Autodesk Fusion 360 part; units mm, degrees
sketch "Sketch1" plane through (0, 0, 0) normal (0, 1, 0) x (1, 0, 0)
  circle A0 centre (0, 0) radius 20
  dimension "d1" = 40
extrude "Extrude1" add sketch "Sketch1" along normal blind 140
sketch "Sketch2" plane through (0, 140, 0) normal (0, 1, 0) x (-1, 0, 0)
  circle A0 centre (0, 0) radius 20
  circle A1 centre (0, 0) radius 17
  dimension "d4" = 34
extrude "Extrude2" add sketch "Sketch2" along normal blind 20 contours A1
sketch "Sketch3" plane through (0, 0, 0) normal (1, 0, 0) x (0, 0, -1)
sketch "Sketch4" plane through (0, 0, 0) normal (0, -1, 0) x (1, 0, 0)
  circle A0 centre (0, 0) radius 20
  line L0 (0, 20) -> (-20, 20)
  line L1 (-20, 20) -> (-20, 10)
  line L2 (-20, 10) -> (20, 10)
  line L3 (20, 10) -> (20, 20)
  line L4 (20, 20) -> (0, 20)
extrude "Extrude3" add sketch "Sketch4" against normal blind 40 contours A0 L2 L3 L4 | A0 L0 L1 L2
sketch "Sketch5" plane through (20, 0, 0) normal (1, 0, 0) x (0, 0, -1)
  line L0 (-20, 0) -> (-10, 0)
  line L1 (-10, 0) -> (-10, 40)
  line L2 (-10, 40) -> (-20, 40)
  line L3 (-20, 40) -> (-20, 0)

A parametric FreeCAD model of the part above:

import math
import FreeCAD as App
import Part
import Sketcher
from FreeCAD import Vector

doc = App.newDocument("Part")
params = doc.addObject("Spreadsheet::Sheet", "Params")
for row, (alias, value) in enumerate([
    ("sketch1_diameter", "40 mm"),
    ("pad1_length", "140 mm"),
    ("sketch2_diameter", "34 mm"),
    ("pad2_length", "20 mm"),
    ("sketch3_radius", "20 mm"),
    ("sketch3_width", "20 mm"),
    ("sketch3_height", "10 mm"),
    ("pad3_length", "40 mm"),
], start=1):
    params.set(f"A{row}", alias)
    params.set(f"B{row}", "=" + value)
    params.setAlias(f"B{row}", alias)

body = doc.addObject("PartDesign::Body", "Body")

# Sketch on XZ plane
sketch1 = body.newObject("Sketcher::SketchObject", "Sketch")
sketch1.AttachmentSupport = (doc.getObject("XZ_Plane"), [""])
sketch1.MapMode = "FlatFace"
sketch1.addGeometry(Part.Circle(Vector(0, 0, 0), Vector(0, 0, 1), 20), False)
sketch1.addConstraint(Sketcher.Constraint("Coincident", 0, 3, -1, 1))
sketch1.addConstraint(Sketcher.Constraint("Diameter", 0, 40.0))
sketch1.setExpression("Constraints[1]", "Params.sketch1_diameter")
pad1 = body.newObject("PartDesign::Pad", "Pad")
pad1.Profile = sketch1
pad1.setExpression("Length", "Params.pad1_length")
pad1.Reversed = True

# Sketch on XZ plane
sketch2 = body.newObject("Sketcher::SketchObject", "Sketch001")
sketch2.AttachmentSupport = (doc.getObject("XZ_Plane"), [""])
sketch2.MapMode = "FlatFace"
sketch2.AttachmentOffset = App.Placement(Vector(0, 0, -140), App.Rotation())
sketch2.addGeometry(Part.Circle(Vector(0, 0, 0), Vector(0, 0, 1), 17), False)
sketch2.addConstraint(Sketcher.Constraint("Coincident", 0, 3, -1, 1))
sketch2.addConstraint(Sketcher.Constraint("Diameter", 0, 34.0))
sketch2.setExpression("Constraints[1]", "Params.sketch2_diameter")
pad2 = body.newObject("PartDesign::Pad", "Pad001")
pad2.Profile = sketch2
pad2.setExpression("Length", "Params.pad2_length")
pad2.Reversed = True

# Sketch on XZ plane
sketch3 = body.newObject("Sketcher::SketchObject", "Sketch002")
sketch3.AttachmentSupport = (doc.getObject("XZ_Plane"), [""])
sketch3.MapMode = "FlatFace"
sketch3.addGeometry(Part.ArcOfCircle(Part.Circle(Vector(0, 0, 0), Vector(0, 0, 1), 20), math.radians(30), math.radians(90)), False)
sketch3.addGeometry(Part.LineSegment(Vector(17.320508, 10, 0), Vector(20, 10, 0)), False)
sketch3.addGeometry(Part.LineSegment(Vector(20, 10, 0), Vector(20, 20, 0)), False)
sketch3.addGeometry(Part.LineSegment(Vector(20, 20, 0), Vector(0, 20, 0)), False)
sketch3.addGeometry(Part.LineSegment(Vector(-20, 10, 0), Vector(-17.320508, 10, 0)), False)
sketch3.addGeometry(Part.ArcOfCircle(Part.Circle(Vector(0, 0, 0), Vector(0, 0, 1), 20), math.radians(90), math.radians(150)), False)
sketch3.addGeometry(Part.LineSegment(Vector(0, 20, 0), Vector(-20, 20, 0)), False)
sketch3.addGeometry(Part.LineSegment(Vector(-20, 20, 0), Vector(-20, 10, 0)), False)
sketch3.addConstraint(Sketcher.Constraint("Coincident", 0, 1, 1, 1))
sketch3.addConstraint(Sketcher.Constraint("Coincident", 1, 2, 2, 1))
sketch3.addConstraint(Sketcher.Constraint("Coincident", 2, 2, 3, 1))
sketch3.addConstraint(Sketcher.Constraint("Tangent", 3, 2, 0, 2))
sketch3.addConstraint(Sketcher.Constraint("Coincident", 4, 2, 5, 2))
sketch3.addConstraint(Sketcher.Constraint("Tangent", 5, 1, 6, 1))
sketch3.addConstraint(Sketcher.Constraint("Coincident", 6, 2, 7, 1))
sketch3.addConstraint(Sketcher.Constraint("Coincident", 7, 2, 4, 1))
sketch3.addConstraint(Sketcher.Constraint("Horizontal", 1))
sketch3.addConstraint(Sketcher.Constraint("Vertical", 2))
sketch3.addConstraint(Sketcher.Constraint("Horizontal", 3))
sketch3.addConstraint(Sketcher.Constraint("Horizontal", 4))
sketch3.addConstraint(Sketcher.Constraint("Horizontal", 6))
sketch3.addConstraint(Sketcher.Constraint("Vertical", 7))
sketch3.addConstraint(Sketcher.Constraint("Coincident", 0, 3, -1, 1))
sketch3.addConstraint(Sketcher.Constraint("Coincident", 5, 3, -1, 1))
sketch3.addConstraint(Sketcher.Constraint("Equal", 0, 5))
sketch3.addConstraint(Sketcher.Constraint("Symmetric", 1, 2, 7, 2, -2))
sketch3.addConstraint(Sketcher.Constraint("Radius", 0, 20.0))
sketch3.addConstraint(Sketcher.Constraint("DistanceX", 3, 2, 3, 1, 20.0))
sketch3.addConstraint(Sketcher.Constraint("DistanceY", 2, 1, 2, 2, 10.0))
sketch3.setExpression("Constraints[18]", "Params.sketch3_radius")
sketch3.setExpression("Constraints[19]", "Params.sketch3_width")
sketch3.setExpression("Constraints[20]", "Params.sketch3_height")
pad3 = body.newObject("PartDesign::Pad", "Pad002")
pad3.Profile = sketch3
pad3.setExpression("Length", "Params.pad3_length")
pad3.Reversed = True

doc.recompute()
